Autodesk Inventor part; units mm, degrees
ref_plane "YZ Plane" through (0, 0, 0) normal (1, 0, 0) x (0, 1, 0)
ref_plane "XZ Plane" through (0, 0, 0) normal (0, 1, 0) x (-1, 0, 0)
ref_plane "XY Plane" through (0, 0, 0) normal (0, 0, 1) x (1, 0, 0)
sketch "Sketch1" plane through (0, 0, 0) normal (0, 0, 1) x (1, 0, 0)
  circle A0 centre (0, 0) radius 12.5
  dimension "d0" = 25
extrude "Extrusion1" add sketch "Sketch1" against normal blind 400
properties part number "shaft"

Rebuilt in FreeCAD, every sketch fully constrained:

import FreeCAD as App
import Part
import Sketcher

V = App.Vector

doc = App.newDocument("Part")
body = doc.addObject("PartDesign::Body", "Body")

sketch1 = doc.addObject("Sketcher::SketchObject", "Sketch")
body.addObject(sketch1)
sketch1.AttachmentSupport = (doc.XY_Plane, [""])
sketch1.MapMode = "FlatFace"
sketch1.addGeometry(Part.Circle(V(0, 0, 0), V(0, 0, 1), 12.5), False)
sketch1.addConstraint([
    Sketcher.Constraint("Coincident", 0, 3, -1, 1),
    Sketcher.Constraint("Diameter", 0, 25.0),
])
pad1 = doc.addObject("PartDesign::Pad", "Pad")
body.addObject(pad1)
pad1.Profile = sketch1
pad1.Length = 400
pad1.Reversed = True

doc.recompute()
